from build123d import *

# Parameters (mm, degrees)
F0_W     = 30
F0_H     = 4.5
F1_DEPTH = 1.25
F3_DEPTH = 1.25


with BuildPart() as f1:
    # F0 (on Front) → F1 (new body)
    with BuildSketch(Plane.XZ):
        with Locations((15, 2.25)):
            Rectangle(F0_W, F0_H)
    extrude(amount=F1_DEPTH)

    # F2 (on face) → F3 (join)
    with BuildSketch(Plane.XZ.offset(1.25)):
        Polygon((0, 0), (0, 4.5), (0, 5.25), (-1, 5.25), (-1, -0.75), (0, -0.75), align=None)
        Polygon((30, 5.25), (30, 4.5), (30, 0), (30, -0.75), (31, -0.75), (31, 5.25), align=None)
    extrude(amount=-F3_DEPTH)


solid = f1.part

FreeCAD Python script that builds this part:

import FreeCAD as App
import Part
import Sketcher

V = App.Vector
Q = App.Units.Quantity


def add_polygon(sketch, points):
    """Adds a closed chain of lines whose ends are joined by coincident constraints."""
    first, n = sketch.GeometryCount, len(points)
    for a, b in zip(points, points[1:] + points[:1]):
        sketch.addGeometry(Part.LineSegment(App.Vector(*a, 0), App.Vector(*b, 0)), False)
    for i in range(n):
        sketch.addConstraint(Sketcher.Constraint("Coincident", first + i, 2, first + (i + 1) % n, 1))

doc = App.newDocument("Part")
body = doc.addObject("PartDesign::Body", "Body")

# Sketch on XZ plane
sketch1 = doc.addObject("Sketcher::SketchObject", "Sketch")
body.addObject(sketch1)
sketch1.AttachmentSupport = (doc.XZ_Plane, [""])
sketch1.MapMode = "FlatFace"
add_polygon(sketch1, [(0, 4.5), (0, 0), (30, 0), (30, 4.5)])  # lines 0-3
sketch1.addConstraint(Sketcher.Constraint("Vertical", 0))
sketch1.addConstraint(Sketcher.Constraint("Horizontal", 1))
sketch1.addConstraint(Sketcher.Constraint("Vertical", 2))
sketch1.addConstraint(Sketcher.Constraint("Horizontal", 3))
sketch1.addConstraint(Sketcher.Constraint("Coincident", 0, 2, -1, 1))
sketch1.addConstraint(Sketcher.Constraint("DistanceX", 1, 1, 1, 2, Q("30 mm")))
sketch1.addConstraint(Sketcher.Constraint("DistanceY", 0, 2, 0, 1, Q("4.5 mm")))
pad1 = doc.addObject("PartDesign::Pad", "Pad")
body.addObject(pad1)
pad1.Profile = sketch1
pad1.Length = 1.25

# Sketch on XZ plane
sketch2 = doc.addObject("Sketcher::SketchObject", "Sketch001")
body.addObject(sketch2)
sketch2.AttachmentSupport = (doc.XZ_Plane, [""])
sketch2.MapMode = "FlatFace"
sketch2.AttachmentOffset = App.Placement(V(0, 0, 1.25), App.Rotation())
add_polygon(sketch2, [(0, 5.2), (-1, 5.2), (-1, -0.8), (0, -0.8)])  # lines 0-3
add_polygon(sketch2, [(30, 5.2), (30, -0.8), (31, -0.8), (31, 5.2)])  # lines 4-7
sketch2.addConstraint(Sketcher.Constraint("Horizontal", 0))
sketch2.addConstraint(Sketcher.Constraint("Vertical", 1))
sketch2.addConstraint(Sketcher.Constraint("Horizontal", 2))
sketch2.addConstraint(Sketcher.Constraint("Vertical", 3))
sketch2.addConstraint(Sketcher.Constraint("Vertical", 4))
sketch2.addConstraint(Sketcher.Constraint("Horizontal", 5))
sketch2.addConstraint(Sketcher.Constraint("Vertical", 6))
sketch2.addConstraint(Sketcher.Constraint("Horizontal", 7))
sketch2.addConstraint(Sketcher.Constraint("PointOnObject", 2, 2, -2))
sketch2.addConstraint(Sketcher.Constraint("Horizontal", 2, 2, 4, 2))
sketch2.addConstraint(Sketcher.Constraint("Horizontal", 3, 2, 6, 2))
sketch2.addConstraint(Sketcher.Constraint("Equal", 2, 5))
sketch2.addConstraint(Sketcher.Constraint("DistanceX", 0, 2, 0, 1, Q("1 mm")))
sketch2.addConstraint(Sketcher.Constraint("DistanceY", 1, 2, 1, 1, Q("6 mm")))
sketch2.addConstraint(Sketcher.Constraint("DistanceX", -1, 1, 4, 2, Q("30 mm")))
sketch2.addConstraint(Sketcher.Constraint("DistanceY", -1, 1, 0, 2, Q("5.25 mm")))
pad2 = doc.addObject("PartDesign::Pad", "Pad001")
body.addObject(pad2)
pad2.Profile = sketch2
pad2.Length = 1.25
pad2.Reversed = True

doc.recompute()
